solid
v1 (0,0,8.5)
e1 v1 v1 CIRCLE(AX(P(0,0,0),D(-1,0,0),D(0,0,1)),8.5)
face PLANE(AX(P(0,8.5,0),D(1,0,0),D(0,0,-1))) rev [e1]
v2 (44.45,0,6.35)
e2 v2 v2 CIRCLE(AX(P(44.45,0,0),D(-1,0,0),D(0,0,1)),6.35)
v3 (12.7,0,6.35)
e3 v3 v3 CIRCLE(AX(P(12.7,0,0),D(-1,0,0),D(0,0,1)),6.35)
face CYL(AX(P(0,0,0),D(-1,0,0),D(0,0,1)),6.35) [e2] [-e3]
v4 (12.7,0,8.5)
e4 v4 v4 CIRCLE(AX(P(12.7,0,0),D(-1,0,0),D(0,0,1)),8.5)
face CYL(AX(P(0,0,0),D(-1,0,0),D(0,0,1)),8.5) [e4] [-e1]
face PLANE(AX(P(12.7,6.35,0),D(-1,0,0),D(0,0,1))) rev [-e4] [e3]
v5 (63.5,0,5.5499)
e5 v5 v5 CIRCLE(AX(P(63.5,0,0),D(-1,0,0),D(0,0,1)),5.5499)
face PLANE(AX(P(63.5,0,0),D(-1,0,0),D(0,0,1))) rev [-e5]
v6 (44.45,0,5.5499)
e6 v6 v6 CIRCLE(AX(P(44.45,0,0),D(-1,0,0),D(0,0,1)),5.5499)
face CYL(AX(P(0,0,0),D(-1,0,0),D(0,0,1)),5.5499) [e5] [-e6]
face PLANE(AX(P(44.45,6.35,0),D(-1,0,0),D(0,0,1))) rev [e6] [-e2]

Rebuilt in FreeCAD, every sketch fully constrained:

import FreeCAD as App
import Part
import Sketcher

V = App.Vector
Q = App.Units.Quantity

doc = App.newDocument("Part")
params = doc.addObject("Spreadsheet::Sheet", "Params")
for row, (alias, value) in enumerate([
    ("sketch1_width", "2.5 in"),
    ("sketch1_width2", "0.5 in"),
    ("sketch1_width3", "0.75 in"),
    ("revolution_angle", "360 deg"),
], start=1):
    params.set(f"A{row}", alias)
    params.set(f"B{row}", "=" + value)
    params.setAlias(f"B{row}", alias)

body = doc.addObject("PartDesign::Body", "Body")

sketch1 = doc.addObject("Sketcher::SketchObject", "Sketch")
body.addObject(sketch1)
sketch1.AttachmentSupport = (doc.XY_Plane, [""])
sketch1.MapMode = "FlatFace"
sketch1.addGeometry(Part.LineSegment(V(0, 0, 0), V(63.5, 0, 0)), False)
sketch1.addGeometry(Part.LineSegment(V(63.5, 0, 0), V(63.5, 5.5, 0)), False)
sketch1.addGeometry(Part.LineSegment(V(63.5, 5.5, 0), V(44.5, 5.5, 0)), False)
sketch1.addGeometry(Part.LineSegment(V(44.5, 5.5, 0), V(44.5, 6.3, 0)), False)
sketch1.addGeometry(Part.LineSegment(V(44.5, 6.3, 0), V(12.7, 6.3, 0)), False)
sketch1.addGeometry(Part.LineSegment(V(12.7, 6.3, 0), V(12.7, 8.5, 0)), False)
sketch1.addGeometry(Part.LineSegment(V(12.7, 8.5, 0), V(0, 8.5, 0)), False)
sketch1.addGeometry(Part.LineSegment(V(0, 8.5, 0), V(0, 0, 0)), False)
sketch1.addConstraint(Sketcher.Constraint("Coincident", 0, 2, 1, 1))
sketch1.addConstraint(Sketcher.Constraint("Coincident", 1, 2, 2, 1))
sketch1.addConstraint(Sketcher.Constraint("Coincident", 2, 2, 3, 1))
sketch1.addConstraint(Sketcher.Constraint("Coincident", 3, 2, 4, 1))
sketch1.addConstraint(Sketcher.Constraint("Coincident", 4, 2, 5, 1))
sketch1.addConstraint(Sketcher.Constraint("Coincident", 5, 2, 6, 1))
sketch1.addConstraint(Sketcher.Constraint("Coincident", 6, 2, 7, 1))
sketch1.addConstraint(Sketcher.Constraint("Coincident", 7, 2, 0, 1))
sketch1.addConstraint(Sketcher.Constraint("Horizontal", 0))
sketch1.addConstraint(Sketcher.Constraint("Vertical", 1))
sketch1.addConstraint(Sketcher.Constraint("Horizontal", 2))
sketch1.addConstraint(Sketcher.Constraint("Vertical", 3))
sketch1.addConstraint(Sketcher.Constraint("Horizontal", 4))
sketch1.addConstraint(Sketcher.Constraint("Vertical", 5))
sketch1.addConstraint(Sketcher.Constraint("Horizontal", 6))
sketch1.addConstraint(Sketcher.Constraint("Vertical", 7))
sketch1.addConstraint(Sketcher.Constraint("Coincident", 7, 2, -1, 1))
sketch1.addConstraint(Sketcher.Constraint("DistanceX", 0, 1, 0, 2, Q("2.5 in")))
sketch1.addConstraint(Sketcher.Constraint("DistanceX", 6, 2, 6, 1, Q("0.5 in")))
sketch1.addConstraint(Sketcher.Constraint("DistanceX", 2, 2, 2, 1, Q("0.75 in")))
sketch1.addConstraint(Sketcher.Constraint("DistanceY", -1, 1, 3, 2, Q("0.25 in")))
sketch1.addConstraint(Sketcher.Constraint("DistanceY", 1, 1, 1, 2, Q("0.2185 in")))
sketch1.addConstraint(Sketcher.Constraint("DistanceY", 5, 1, 5, 2, Q("2.15 mm")))
sketch1.setExpression("Constraints[17]", "Params.sketch1_width")
sketch1.setExpression("Constraints[18]", "Params.sketch1_width2")
sketch1.setExpression("Constraints[19]", "Params.sketch1_width3")
revolution = doc.addObject("PartDesign::Revolution", "Revolution")
body.addObject(revolution)
revolution.Profile = sketch1
revolution.ReferenceAxis = (sketch1, ["H_Axis"])
revolution.setExpression("Angle", "Params.revolution_angle")

doc.recompute()
